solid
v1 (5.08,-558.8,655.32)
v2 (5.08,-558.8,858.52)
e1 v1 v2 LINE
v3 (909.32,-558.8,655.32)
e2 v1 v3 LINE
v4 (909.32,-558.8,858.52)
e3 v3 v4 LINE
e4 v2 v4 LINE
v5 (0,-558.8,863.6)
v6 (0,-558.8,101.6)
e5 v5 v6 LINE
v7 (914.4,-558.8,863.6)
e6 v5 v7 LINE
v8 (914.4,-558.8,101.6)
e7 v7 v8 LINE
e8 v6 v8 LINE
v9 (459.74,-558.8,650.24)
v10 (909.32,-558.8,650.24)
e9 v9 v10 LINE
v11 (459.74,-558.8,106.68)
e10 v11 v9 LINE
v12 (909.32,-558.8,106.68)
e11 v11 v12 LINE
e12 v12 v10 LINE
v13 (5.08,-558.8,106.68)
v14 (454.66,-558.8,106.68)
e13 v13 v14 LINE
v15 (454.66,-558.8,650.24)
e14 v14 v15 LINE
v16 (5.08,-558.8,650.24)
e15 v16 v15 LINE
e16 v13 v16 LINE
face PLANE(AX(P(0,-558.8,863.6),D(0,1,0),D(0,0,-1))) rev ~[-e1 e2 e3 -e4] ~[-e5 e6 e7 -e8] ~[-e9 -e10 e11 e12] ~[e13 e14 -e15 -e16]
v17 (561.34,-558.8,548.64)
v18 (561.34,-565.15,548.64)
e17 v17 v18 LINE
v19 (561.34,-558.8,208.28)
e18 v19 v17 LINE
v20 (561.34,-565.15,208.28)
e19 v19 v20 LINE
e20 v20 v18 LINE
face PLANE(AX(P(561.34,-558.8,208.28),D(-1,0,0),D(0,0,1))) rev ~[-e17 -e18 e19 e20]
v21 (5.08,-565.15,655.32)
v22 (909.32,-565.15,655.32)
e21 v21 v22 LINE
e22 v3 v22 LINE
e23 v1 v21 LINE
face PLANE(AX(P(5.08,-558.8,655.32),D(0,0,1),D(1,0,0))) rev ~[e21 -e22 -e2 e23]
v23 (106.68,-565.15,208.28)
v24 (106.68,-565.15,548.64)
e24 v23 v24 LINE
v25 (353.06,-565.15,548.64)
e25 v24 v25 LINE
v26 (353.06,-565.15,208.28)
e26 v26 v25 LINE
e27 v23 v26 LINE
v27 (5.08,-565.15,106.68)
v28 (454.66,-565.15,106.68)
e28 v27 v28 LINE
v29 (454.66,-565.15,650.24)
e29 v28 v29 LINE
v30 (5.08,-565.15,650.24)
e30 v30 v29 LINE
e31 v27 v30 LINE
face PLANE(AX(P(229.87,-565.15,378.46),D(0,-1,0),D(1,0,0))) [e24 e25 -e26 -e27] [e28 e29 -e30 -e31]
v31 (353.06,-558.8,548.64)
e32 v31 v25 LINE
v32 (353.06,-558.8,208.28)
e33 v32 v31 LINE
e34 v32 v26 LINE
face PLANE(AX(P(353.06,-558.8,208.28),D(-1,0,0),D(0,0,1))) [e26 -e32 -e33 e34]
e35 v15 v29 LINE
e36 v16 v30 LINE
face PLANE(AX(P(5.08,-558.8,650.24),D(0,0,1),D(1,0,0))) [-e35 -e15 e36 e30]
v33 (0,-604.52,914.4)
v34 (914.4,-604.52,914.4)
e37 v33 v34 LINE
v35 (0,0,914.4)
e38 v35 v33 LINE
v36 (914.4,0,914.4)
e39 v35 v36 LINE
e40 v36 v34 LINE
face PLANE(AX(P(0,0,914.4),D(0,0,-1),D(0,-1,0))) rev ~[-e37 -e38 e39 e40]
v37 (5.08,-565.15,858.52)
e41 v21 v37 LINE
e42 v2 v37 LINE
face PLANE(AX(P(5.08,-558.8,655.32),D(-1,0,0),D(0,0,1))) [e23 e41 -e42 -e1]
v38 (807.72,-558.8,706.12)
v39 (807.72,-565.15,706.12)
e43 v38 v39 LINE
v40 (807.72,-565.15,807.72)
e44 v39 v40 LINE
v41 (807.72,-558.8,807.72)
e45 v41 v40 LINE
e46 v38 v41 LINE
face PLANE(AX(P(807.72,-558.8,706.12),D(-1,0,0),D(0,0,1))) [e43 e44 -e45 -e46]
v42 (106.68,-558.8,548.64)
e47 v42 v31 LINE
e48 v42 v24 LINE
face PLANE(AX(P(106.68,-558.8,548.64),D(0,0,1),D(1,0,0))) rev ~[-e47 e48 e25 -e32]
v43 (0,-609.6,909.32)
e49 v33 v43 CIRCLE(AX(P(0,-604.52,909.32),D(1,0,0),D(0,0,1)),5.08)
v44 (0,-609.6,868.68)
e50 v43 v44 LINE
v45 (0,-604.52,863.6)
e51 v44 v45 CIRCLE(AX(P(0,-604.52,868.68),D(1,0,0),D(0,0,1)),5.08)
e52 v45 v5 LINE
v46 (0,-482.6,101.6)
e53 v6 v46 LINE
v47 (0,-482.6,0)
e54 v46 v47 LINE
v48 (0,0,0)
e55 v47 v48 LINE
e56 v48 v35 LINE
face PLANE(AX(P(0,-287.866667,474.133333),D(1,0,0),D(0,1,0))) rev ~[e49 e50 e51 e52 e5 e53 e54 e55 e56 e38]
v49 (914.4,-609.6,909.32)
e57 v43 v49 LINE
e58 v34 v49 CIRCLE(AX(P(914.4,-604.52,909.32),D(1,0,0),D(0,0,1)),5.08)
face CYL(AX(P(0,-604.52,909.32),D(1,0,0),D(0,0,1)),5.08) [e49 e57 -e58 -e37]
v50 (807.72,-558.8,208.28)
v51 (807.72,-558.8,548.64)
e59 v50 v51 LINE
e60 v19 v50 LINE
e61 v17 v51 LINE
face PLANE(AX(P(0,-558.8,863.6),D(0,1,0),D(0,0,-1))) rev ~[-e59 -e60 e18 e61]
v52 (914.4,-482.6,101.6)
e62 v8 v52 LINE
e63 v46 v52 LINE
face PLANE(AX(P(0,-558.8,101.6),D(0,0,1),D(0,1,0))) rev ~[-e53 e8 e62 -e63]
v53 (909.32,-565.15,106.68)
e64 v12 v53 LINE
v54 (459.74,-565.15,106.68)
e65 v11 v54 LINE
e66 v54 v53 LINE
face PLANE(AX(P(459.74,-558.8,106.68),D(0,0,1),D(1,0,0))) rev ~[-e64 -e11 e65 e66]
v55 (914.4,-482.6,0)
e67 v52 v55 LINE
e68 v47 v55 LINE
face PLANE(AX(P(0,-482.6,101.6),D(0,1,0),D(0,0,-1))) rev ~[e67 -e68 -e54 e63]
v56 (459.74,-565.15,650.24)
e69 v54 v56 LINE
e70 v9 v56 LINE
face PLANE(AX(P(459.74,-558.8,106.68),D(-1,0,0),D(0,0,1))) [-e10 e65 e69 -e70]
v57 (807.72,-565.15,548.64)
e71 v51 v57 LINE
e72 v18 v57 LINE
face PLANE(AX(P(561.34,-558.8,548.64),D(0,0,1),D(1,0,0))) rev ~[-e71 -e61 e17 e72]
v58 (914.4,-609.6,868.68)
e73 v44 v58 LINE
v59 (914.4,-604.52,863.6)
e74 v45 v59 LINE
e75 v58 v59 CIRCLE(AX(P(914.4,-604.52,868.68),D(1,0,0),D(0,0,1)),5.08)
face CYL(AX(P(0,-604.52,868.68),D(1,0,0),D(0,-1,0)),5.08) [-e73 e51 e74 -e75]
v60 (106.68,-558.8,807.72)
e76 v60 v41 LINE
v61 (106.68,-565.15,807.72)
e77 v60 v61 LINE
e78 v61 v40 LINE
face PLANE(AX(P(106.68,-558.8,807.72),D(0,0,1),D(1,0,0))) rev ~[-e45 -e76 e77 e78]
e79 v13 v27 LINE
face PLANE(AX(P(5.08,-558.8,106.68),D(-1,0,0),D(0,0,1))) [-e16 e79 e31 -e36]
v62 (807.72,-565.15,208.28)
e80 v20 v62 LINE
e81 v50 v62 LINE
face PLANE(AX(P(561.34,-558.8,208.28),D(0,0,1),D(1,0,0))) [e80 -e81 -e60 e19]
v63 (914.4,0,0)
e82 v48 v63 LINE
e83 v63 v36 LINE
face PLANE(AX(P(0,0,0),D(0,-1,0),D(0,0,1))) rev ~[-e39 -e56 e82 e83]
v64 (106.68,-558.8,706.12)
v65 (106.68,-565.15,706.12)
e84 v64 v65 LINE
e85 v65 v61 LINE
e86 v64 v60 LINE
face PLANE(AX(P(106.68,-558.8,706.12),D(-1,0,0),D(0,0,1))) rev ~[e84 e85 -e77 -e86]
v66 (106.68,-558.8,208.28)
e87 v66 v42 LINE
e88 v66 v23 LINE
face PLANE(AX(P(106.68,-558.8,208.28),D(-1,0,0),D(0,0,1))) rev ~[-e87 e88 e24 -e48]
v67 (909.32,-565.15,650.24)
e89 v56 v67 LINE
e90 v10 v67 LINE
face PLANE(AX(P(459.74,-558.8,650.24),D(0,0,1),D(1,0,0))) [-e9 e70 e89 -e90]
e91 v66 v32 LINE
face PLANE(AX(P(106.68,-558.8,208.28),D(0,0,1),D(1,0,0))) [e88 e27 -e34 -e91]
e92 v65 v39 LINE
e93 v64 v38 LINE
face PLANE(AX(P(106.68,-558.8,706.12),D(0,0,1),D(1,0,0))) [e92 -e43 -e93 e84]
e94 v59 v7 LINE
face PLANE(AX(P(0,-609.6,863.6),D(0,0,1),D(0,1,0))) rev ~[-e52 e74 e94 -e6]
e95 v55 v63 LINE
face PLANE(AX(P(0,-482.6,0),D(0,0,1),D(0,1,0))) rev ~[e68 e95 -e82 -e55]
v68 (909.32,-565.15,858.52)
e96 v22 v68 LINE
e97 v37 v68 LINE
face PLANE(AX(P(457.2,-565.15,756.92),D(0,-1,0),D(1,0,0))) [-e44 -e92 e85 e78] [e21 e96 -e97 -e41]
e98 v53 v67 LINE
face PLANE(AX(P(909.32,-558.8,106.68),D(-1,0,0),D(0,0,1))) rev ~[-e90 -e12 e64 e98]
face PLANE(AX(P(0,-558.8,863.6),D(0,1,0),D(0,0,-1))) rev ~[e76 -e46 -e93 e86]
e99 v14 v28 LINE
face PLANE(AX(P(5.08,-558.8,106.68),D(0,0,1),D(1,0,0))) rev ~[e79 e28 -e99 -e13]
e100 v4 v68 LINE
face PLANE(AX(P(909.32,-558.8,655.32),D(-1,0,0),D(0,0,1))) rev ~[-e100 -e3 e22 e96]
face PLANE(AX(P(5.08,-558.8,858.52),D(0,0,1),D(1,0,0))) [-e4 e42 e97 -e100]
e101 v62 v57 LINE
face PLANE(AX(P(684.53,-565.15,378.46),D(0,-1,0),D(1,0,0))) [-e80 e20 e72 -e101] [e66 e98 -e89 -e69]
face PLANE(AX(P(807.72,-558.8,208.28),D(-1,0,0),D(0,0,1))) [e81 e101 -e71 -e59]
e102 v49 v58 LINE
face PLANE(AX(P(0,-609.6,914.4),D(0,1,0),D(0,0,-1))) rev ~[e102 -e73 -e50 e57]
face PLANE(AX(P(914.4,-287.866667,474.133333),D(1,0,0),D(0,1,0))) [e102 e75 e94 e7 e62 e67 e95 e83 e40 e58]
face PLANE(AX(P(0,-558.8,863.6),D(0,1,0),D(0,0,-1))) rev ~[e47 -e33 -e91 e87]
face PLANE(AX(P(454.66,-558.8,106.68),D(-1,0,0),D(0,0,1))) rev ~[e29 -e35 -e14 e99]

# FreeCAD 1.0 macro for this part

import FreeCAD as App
import Part
import Sketcher
Q = App.Units.Quantity


def edges_at(feature, points):
    """Names of the edges that pass closest to the given points."""
    edges = feature.Shape.Edges
    near = lambda p: min(range(len(edges)), key=lambda i: edges[i].distToShape(Part.Vertex(*p))[0])
    return sorted({f"Edge{near(p) + 1}" for p in points})

doc = App.newDocument("Part")
body = doc.addObject("PartDesign::Body", "Body")

# Sketch on YZ plane
sketch1 = body.newObject("Sketcher::SketchObject", "Sketch")
sketch1.AttachmentSupport = (doc.getObject("YZ_Plane"), [""])
sketch1.MapMode = "FlatFace"
sketch1.addGeometry([
    Part.LineSegment(App.Vector(-483, 0, 0), App.Vector(0, 0, 0)),  # 0
    Part.LineSegment(App.Vector(0, 0, 0), App.Vector(0, 914, 0)),  # 1
    Part.LineSegment(App.Vector(0, 914, 0), App.Vector(-610, 914, 0)),  # 2
    Part.LineSegment(App.Vector(-610, 914, 0), App.Vector(-610, 864, 0)),  # 3
    Part.LineSegment(App.Vector(-610, 864, 0), App.Vector(-559, 864, 0)),  # 4
    Part.LineSegment(App.Vector(-559, 864, 0), App.Vector(-559, 102, 0)),  # 5
    Part.LineSegment(App.Vector(-559, 102, 0), App.Vector(-483, 102, 0)),  # 6
    Part.LineSegment(App.Vector(-483, 102, 0), App.Vector(-483, 0, 0)),  # 7
], False)
sketch1.addConstraint([
    Sketcher.Constraint("Coincident", 0, 2, 1, 1),
    Sketcher.Constraint("Coincident", 1, 2, 2, 1),
    Sketcher.Constraint("Coincident", 2, 2, 3, 1),
    Sketcher.Constraint("Coincident", 3, 2, 4, 1),
    Sketcher.Constraint("Coincident", 4, 2, 5, 1),
    Sketcher.Constraint("Coincident", 5, 2, 6, 1),
    Sketcher.Constraint("Coincident", 6, 2, 7, 1),
    Sketcher.Constraint("Coincident", 7, 2, 0, 1),
    Sketcher.Constraint("Horizontal", 0),
    Sketcher.Constraint("Vertical", 1),
    Sketcher.Constraint("Horizontal", 2),
    Sketcher.Constraint("Vertical", 3),
    Sketcher.Constraint("Horizontal", 4),
    Sketcher.Constraint("Vertical", 5),
    Sketcher.Constraint("Horizontal", 6),
    Sketcher.Constraint("Vertical", 7),
    Sketcher.Constraint("Coincident", 0, 2, -1, 1),
    Sketcher.Constraint("Equal", 4, 3),
    Sketcher.Constraint("DistanceX", 0, 1, 0, 2, Q("19 in")),
    Sketcher.Constraint("DistanceX", 2, 2, 2, 1, Q("24 in")),
    Sketcher.Constraint("DistanceX", 4, 1, 4, 2, Q("2 in")),
    Sketcher.Constraint("DistanceY", 1, 1, 1, 2, Q("36 in")),
    Sketcher.Constraint("DistanceY", 5, 2, 5, 1, Q("30 in")),
])
pad1 = body.newObject("PartDesign::Pad", "Pad")
pad1.Profile = sketch1
pad1.Length = Q("36 in")
doc.recompute()

fillet = body.newObject("PartDesign::Fillet", "Fillet")
fillet.Base = (pad1, edges_at(pad1, [(457.2, -609.6, 914.4), (457.2, -609.6, 863.6)]))
fillet.Radius = Q("0.2 in")

# Sketch on XZ plane
sketch2 = body.newObject("Sketcher::SketchObject", "Sketch001")
sketch2.AttachmentSupport = (doc.getObject("XZ_Plane"), [""])
sketch2.MapMode = "FlatFace"
sketch2.AttachmentOffset = App.Placement(App.Vector(0, 0, 22 * 25.4), App.Rotation())
sketch2.addGeometry([
    Part.LineSegment(App.Vector(5, 859, 0), App.Vector(5, 655, 0)),  # 0
    Part.LineSegment(App.Vector(5, 655, 0), App.Vector(909, 655, 0)),  # 1
    Part.LineSegment(App.Vector(909, 655, 0), App.Vector(909, 859, 0)),  # 2
    Part.LineSegment(App.Vector(909, 859, 0), App.Vector(5, 859, 0)),  # 3
    Part.LineSegment(App.Vector(808, 706, 0), App.Vector(107, 706, 0)),  # 4
    Part.LineSegment(App.Vector(107, 706, 0), App.Vector(107, 808, 0)),  # 5
    Part.LineSegment(App.Vector(107, 808, 0), App.Vector(808, 808, 0)),  # 6
    Part.LineSegment(App.Vector(808, 808, 0), App.Vector(808, 706, 0)),  # 7
    Part.LineSegment(App.Vector(460, 650, 0), App.Vector(460, 107, 0)),  # 8
    Part.LineSegment(App.Vector(460, 107, 0), App.Vector(909, 107, 0)),  # 9
    Part.LineSegment(App.Vector(909, 107, 0), App.Vector(909, 650, 0)),  # 10
    Part.LineSegment(App.Vector(909, 650, 0), App.Vector(460, 650, 0)),  # 11
    Part.LineSegment(App.Vector(808, 208, 0), App.Vector(561, 208, 0)),  # 12
    Part.LineSegment(App.Vector(561, 208, 0), App.Vector(561, 549, 0)),  # 13
    Part.LineSegment(App.Vector(561, 549, 0), App.Vector(808, 549, 0)),  # 14
    Part.LineSegment(App.Vector(808, 549, 0), App.Vector(808, 208, 0)),  # 15
    Part.LineSegment(App.Vector(5, 650, 0), App.Vector(5, 107, 0)),  # 16
    Part.LineSegment(App.Vector(5, 107, 0), App.Vector(455, 107, 0)),  # 17
    Part.LineSegment(App.Vector(455, 107, 0), App.Vector(455, 650, 0)),  # 18
    Part.LineSegment(App.Vector(455, 650, 0), App.Vector(5, 650, 0)),  # 19
    Part.LineSegment(App.Vector(353, 208, 0), App.Vector(107, 208, 0)),  # 20
    Part.LineSegment(App.Vector(107, 208, 0), App.Vector(107, 549, 0)),  # 21
    Part.LineSegment(App.Vector(107, 549, 0), App.Vector(353, 549, 0)),  # 22
    Part.LineSegment(App.Vector(353, 549, 0), App.Vector(353, 208, 0)),  # 23
], False)
sketch2.addConstraint([
    Sketcher.Constraint("Coincident", 0, 2, 1, 1),
    Sketcher.Constraint("Coincident", 1, 2, 2, 1),
    Sketcher.Constraint("Coincident", 2, 2, 3, 1),
    Sketcher.Constraint("Coincident", 3, 2, 0, 1),
    Sketcher.Constraint("Coincident", 4, 2, 5, 1),
    Sketcher.Constraint("Coincident", 5, 2, 6, 1),
    Sketcher.Constraint("Coincident", 6, 2, 7, 1),
    Sketcher.Constraint("Coincident", 7, 2, 4, 1),
    Sketcher.Constraint("Coincident", 8, 2, 9, 1),
    Sketcher.Constraint("Coincident", 9, 2, 10, 1),
    Sketcher.Constraint("Coincident", 10, 2, 11, 1),
    Sketcher.Constraint("Coincident", 11, 2, 8, 1),
    Sketcher.Constraint("Coincident", 12, 2, 13, 1),
    Sketcher.Constraint("Coincident", 13, 2, 14, 1),
    Sketcher.Constraint("Coincident", 14, 2, 15, 1),
    Sketcher.Constraint("Coincident", 15, 2, 12, 1),
    Sketcher.Constraint("Coincident", 16, 2, 17, 1),
    Sketcher.Constraint("Coincident", 17, 2, 18, 1),
    Sketcher.Constraint("Coincident", 18, 2, 19, 1),
    Sketcher.Constraint("Coincident", 19, 2, 16, 1),
    Sketcher.Constraint("Coincident", 20, 2, 21, 1),
    Sketcher.Constraint("Coincident", 21, 2, 22, 1),
    Sketcher.Constraint("Coincident", 22, 2, 23, 1),
    Sketcher.Constraint("Coincident", 23, 2, 20, 1),
    Sketcher.Constraint("Vertical", 0),
    Sketcher.Constraint("Horizontal", 1),
    Sketcher.Constraint("Vertical", 2),
    Sketcher.Constraint("Horizontal", 3),
    Sketcher.Constraint("Horizontal", 4),
    Sketcher.Constraint("Vertical", 5),
    Sketcher.Constraint("Horizontal", 6),
    Sketcher.Constraint("Vertical", 7),
    Sketcher.Constraint("Vertical", 8),
    Sketcher.Constraint("Horizontal", 9),
    Sketcher.Constraint("Vertical", 10),
    Sketcher.Constraint("Horizontal", 11),
    Sketcher.Constraint("Horizontal", 12),
    Sketcher.Constraint("Vertical", 13),
    Sketcher.Constraint("Horizontal", 14),
    Sketcher.Constraint("Vertical", 15),
    Sketcher.Constraint("Vertical", 16),
    Sketcher.Constraint("Horizontal", 17),
    Sketcher.Constraint("Vertical", 18),
    Sketcher.Constraint("Horizontal", 19),
    Sketcher.Constraint("Horizontal", 20),
    Sketcher.Constraint("Vertical", 21),
    Sketcher.Constraint("Horizontal", 22),
    Sketcher.Constraint("Vertical", 23),
    Sketcher.Constraint("Horizontal", 9, 2, 16, 2),
    Sketcher.Constraint("Horizontal", 11, 2, 18, 2),
    Sketcher.Constraint("Horizontal", 15, 2, 20, 2),
    Sketcher.Constraint("Horizontal", 14, 2, 21, 2),
    Sketcher.Constraint("Vertical", 2, 2, 9, 2),
    Sketcher.Constraint("Vertical", 7, 2, 14, 2),
    Sketcher.Constraint("Vertical", 3, 2, 16, 2),
    Sketcher.Constraint("Vertical", 5, 2, 20, 2),
    Sketcher.Constraint("Equal", 11, 17),
    Sketcher.Constraint("Equal", 14, 20),
    Sketcher.Constraint("DistanceY", 0, 2, 0, 1, Q("8 in")),
    Sketcher.Constraint("DistanceY", 5, 1, 5, 2, Q("4 in")),
    Sketcher.Constraint("DistanceX", 1, 1, 1, 2, Q("35.6 in")),
    Sketcher.Constraint("DistanceX", 4, 2, 4, 1, Q("27.6 in")),
    Sketcher.Constraint("DistanceX", 9, 1, 9, 2, Q("17.7 in")),
    Sketcher.Constraint("DistanceX", 12, 2, 12, 1, Q("9.7 in")),
    Sketcher.Constraint("DistanceY", 8, 2, 8, 1, Q("21.4 in")),
    Sketcher.Constraint("DistanceY", 13, 1, 13, 2, Q("13.4 in")),
    Sketcher.Constraint("DistanceX", 0, 2, 4, 2, Q("4 in")),
    Sketcher.Constraint("DistanceY", 0, 2, 4, 2, Q("2 in")),
    Sketcher.Constraint("DistanceY", 8, 2, 12, 2, Q("4 in")),
    Sketcher.Constraint("DistanceX", -1, 1, 0, 2, Q("0.2 in")),
    Sketcher.Constraint("DistanceY", -1, 1, 0, 2, Q("25.8 in")),
    Sketcher.Constraint("DistanceY", -1, 1, 8, 2, Q("4.2 in")),
])
pad2 = body.newObject("PartDesign::Pad", "Pad001")
pad2.Profile = sketch2
pad2.Length = Q("0.25 in")

doc.recompute()
